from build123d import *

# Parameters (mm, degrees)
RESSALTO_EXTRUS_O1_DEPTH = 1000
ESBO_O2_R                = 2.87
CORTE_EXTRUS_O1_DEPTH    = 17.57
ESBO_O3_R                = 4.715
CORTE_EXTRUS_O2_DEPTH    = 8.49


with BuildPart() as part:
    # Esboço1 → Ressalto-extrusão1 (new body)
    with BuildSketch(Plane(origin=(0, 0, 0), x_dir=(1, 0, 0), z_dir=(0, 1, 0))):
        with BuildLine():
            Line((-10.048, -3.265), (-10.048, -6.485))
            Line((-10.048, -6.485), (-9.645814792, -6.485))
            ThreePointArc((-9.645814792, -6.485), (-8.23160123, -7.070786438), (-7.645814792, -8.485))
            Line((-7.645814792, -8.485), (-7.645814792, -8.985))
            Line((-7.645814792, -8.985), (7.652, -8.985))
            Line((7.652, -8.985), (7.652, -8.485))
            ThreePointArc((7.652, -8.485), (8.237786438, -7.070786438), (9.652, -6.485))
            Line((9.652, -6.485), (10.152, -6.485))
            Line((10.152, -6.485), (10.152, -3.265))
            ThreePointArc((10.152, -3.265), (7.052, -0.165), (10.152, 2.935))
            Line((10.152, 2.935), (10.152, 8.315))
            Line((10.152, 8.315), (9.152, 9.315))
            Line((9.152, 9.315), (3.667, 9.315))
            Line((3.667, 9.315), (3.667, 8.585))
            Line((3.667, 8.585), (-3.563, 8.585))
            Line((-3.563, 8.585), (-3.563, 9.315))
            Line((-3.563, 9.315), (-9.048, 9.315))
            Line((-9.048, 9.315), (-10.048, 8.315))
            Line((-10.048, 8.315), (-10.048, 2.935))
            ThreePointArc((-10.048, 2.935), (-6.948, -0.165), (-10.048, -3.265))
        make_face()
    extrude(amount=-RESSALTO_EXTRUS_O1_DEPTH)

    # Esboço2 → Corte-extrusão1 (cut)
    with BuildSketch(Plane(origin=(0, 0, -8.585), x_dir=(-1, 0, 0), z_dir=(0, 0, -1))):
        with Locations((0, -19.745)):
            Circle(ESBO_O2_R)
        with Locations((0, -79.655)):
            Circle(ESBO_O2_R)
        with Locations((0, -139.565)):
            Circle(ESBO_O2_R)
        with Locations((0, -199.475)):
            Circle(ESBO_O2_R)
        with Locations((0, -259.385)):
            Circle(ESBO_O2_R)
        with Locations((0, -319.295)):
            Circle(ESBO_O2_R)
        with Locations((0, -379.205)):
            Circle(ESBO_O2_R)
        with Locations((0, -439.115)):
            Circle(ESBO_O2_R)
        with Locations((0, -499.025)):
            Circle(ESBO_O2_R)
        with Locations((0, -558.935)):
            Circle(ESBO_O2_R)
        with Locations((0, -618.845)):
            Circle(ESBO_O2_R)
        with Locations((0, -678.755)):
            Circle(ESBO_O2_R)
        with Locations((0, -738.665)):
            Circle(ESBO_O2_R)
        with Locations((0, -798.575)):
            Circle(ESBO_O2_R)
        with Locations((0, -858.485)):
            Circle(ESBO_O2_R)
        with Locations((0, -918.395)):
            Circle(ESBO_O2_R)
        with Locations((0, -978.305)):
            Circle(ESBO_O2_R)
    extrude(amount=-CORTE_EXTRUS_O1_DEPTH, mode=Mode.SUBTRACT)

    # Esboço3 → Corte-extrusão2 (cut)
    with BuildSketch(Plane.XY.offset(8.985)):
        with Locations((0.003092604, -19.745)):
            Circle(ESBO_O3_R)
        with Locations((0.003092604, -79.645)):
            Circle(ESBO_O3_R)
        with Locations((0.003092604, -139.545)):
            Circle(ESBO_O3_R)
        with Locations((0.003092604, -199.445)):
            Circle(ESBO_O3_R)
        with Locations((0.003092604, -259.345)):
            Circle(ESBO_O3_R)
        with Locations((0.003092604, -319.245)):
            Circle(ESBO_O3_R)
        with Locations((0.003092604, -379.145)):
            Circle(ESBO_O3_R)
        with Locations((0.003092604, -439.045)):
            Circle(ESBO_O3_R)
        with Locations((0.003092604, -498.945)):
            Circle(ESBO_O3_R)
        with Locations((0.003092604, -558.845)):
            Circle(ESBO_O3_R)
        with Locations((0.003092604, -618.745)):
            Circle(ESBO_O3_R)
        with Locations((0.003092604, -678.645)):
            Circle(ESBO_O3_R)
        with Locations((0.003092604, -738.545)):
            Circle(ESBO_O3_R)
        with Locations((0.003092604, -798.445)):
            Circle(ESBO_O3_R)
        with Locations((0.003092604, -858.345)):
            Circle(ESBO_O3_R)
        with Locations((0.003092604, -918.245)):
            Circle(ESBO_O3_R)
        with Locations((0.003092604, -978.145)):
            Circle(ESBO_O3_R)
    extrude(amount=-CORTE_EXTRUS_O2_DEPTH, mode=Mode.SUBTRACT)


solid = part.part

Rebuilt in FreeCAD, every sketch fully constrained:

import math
import FreeCAD as App
import Part
import Sketcher

V = App.Vector

doc = App.newDocument("Part")
params = doc.addObject("Spreadsheet::Sheet", "Params")
for row, (alias, value) in enumerate([
    ("sketch1_radius", "2 mm"),
    ("sketch1_radius2", "3.1 mm"),
    ("sketch1_width", "0.5 mm"),
    ("sketch1_width2", "7.23 mm"),
    ("sketch1_height", "3.22 mm"),
    ("pad1_length", "1000 mm"),
    ("sketch2_diameter", "5.74 mm"),
    ("pocket1_length", "17.57 mm"),
    ("sketch3_diameter", "9.43 mm"),
    ("pocket2_length", "8.49 mm"),
], start=1):
    params.set(f"A{row}", alias)
    params.set(f"B{row}", "=" + value)
    params.setAlias(f"B{row}", alias)

body = doc.addObject("PartDesign::Body", "Body")

sketch1 = doc.addObject("Sketcher::SketchObject", "Sketch")
body.addObject(sketch1)
sketch1.AttachmentSupport = (doc.XZ_Plane, [""])
sketch1.MapMode = "FlatFace"
sketch1.addGeometry(Part.LineSegment(V(-10.048, 3.265, 0), V(-10.048, 6.485, 0)), False)
sketch1.addGeometry(Part.LineSegment(V(-10.048, 6.485, 0), V(-9.645815, 6.485, 0)), False)
sketch1.addGeometry(Part.ArcOfCircle(Part.Circle(V(-9.645815, 8.485, 0), V(0, 0, 1), 2), math.radians(-90), math.radians(0)), False)
sketch1.addGeometry(Part.LineSegment(V(-7.645815, 8.485, 0), V(-7.645815, 8.985, 0)), False)
sketch1.addGeometry(Part.LineSegment(V(-7.645815, 8.985, 0), V(7.652, 8.985, 0)), False)
sketch1.addGeometry(Part.LineSegment(V(7.652, 8.985, 0), V(7.652, 8.485, 0)), False)
sketch1.addGeometry(Part.ArcOfCircle(Part.Circle(V(9.652, 8.485, 0), V(0, 0, 1), 2), math.radians(-180), math.radians(-90)), False)
sketch1.addGeometry(Part.LineSegment(V(9.652, 6.485, 0), V(10.152, 6.485, 0)), False)
sketch1.addGeometry(Part.LineSegment(V(10.152, 6.485, 0), V(10.152, 3.265, 0)), False)
sketch1.addGeometry(Part.ArcOfCircle(Part.Circle(V(10.152, 0.165, 0), V(0, 0, 1), 3.1), math.radians(90), math.radians(270)), False)
sketch1.addGeometry(Part.LineSegment(V(10.152, -2.935, 0), V(10.152, -8.315, 0)), False)
sketch1.addGeometry(Part.LineSegment(V(10.152, -8.315, 0), V(9.152, -9.315, 0)), False)
sketch1.addGeometry(Part.LineSegment(V(9.152, -9.315, 0), V(3.667, -9.315, 0)), False)
sketch1.addGeometry(Part.LineSegment(V(3.667, -9.315, 0), V(3.667, -8.585, 0)), False)
sketch1.addGeometry(Part.LineSegment(V(3.667, -8.585, 0), V(-3.563, -8.585, 0)), False)
sketch1.addGeometry(Part.LineSegment(V(-3.563, -8.585, 0), V(-3.563, -9.315, 0)), False)
sketch1.addGeometry(Part.LineSegment(V(-3.563, -9.315, 0), V(-9.048, -9.315, 0)), False)
sketch1.addGeometry(Part.LineSegment(V(-9.048, -9.315, 0), V(-10.048, -8.315, 0)), False)
sketch1.addGeometry(Part.LineSegment(V(-10.048, -8.315, 0), V(-10.048, -2.935, 0)), False)
sketch1.addGeometry(Part.ArcOfCircle(Part.Circle(V(-10.048, 0.165, 0), V(0, 0, 1), 3.1), math.radians(-90), math.radians(90)), False)
sketch1.addConstraint(Sketcher.Constraint("Coincident", 0, 2, 1, 1))
sketch1.addConstraint(Sketcher.Constraint("Tangent", 1, 2, 2, 1))
sketch1.addConstraint(Sketcher.Constraint("Tangent", 2, 2, 3, 1))
sketch1.addConstraint(Sketcher.Constraint("Coincident", 3, 2, 4, 1))
sketch1.addConstraint(Sketcher.Constraint("Coincident", 4, 2, 5, 1))
sketch1.addConstraint(Sketcher.Constraint("Tangent", 5, 2, 6, 1))
sketch1.addConstraint(Sketcher.Constraint("Tangent", 6, 2, 7, 1))
sketch1.addConstraint(Sketcher.Constraint("Coincident", 7, 2, 8, 1))
sketch1.addConstraint(Sketcher.Constraint("Coincident", 8, 2, 9, 1))
sketch1.addConstraint(Sketcher.Constraint("Coincident", 9, 2, 10, 1))
sketch1.addConstraint(Sketcher.Constraint("Coincident", 10, 2, 11, 1))
sketch1.addConstraint(Sketcher.Constraint("Coincident", 11, 2, 12, 1))
sketch1.addConstraint(Sketcher.Constraint("Coincident", 12, 2, 13, 1))
sketch1.addConstraint(Sketcher.Constraint("Coincident", 13, 2, 14, 1))
sketch1.addConstraint(Sketcher.Constraint("Coincident", 14, 2, 15, 1))
sketch1.addConstraint(Sketcher.Constraint("Coincident", 15, 2, 16, 1))
sketch1.addConstraint(Sketcher.Constraint("Coincident", 16, 2, 17, 1))
sketch1.addConstraint(Sketcher.Constraint("Coincident", 17, 2, 18, 1))
sketch1.addConstraint(Sketcher.Constraint("Coincident", 18, 2, 19, 1))
sketch1.addConstraint(Sketcher.Constraint("Coincident", 19, 2, 0, 1))
sketch1.addConstraint(Sketcher.Constraint("Vertical", 0))
sketch1.addConstraint(Sketcher.Constraint("Horizontal", 1))
sketch1.addConstraint(Sketcher.Constraint("Vertical", 3))
sketch1.addConstraint(Sketcher.Constraint("Horizontal", 4))
sketch1.addConstraint(Sketcher.Constraint("Vertical", 5))
sketch1.addConstraint(Sketcher.Constraint("Horizontal", 7))
sketch1.addConstraint(Sketcher.Constraint("Vertical", 8))
sketch1.addConstraint(Sketcher.Constraint("Vertical", 10))
sketch1.addConstraint(Sketcher.Constraint("Horizontal", 12))
sketch1.addConstraint(Sketcher.Constraint("Vertical", 13))
sketch1.addConstraint(Sketcher.Constraint("Horizontal", 14))
sketch1.addConstraint(Sketcher.Constraint("Vertical", 15))
sketch1.addConstraint(Sketcher.Constraint("Horizontal", 16))
sketch1.addConstraint(Sketcher.Constraint("Vertical", 18))
sketch1.addConstraint(Sketcher.Constraint("Equal", 2, 6))
sketch1.addConstraint(Sketcher.Constraint("Equal", 9, 19))
sketch1.addConstraint(Sketcher.Constraint("Perpendicular", 11, 17))
sketch1.addConstraint(Sketcher.Constraint("Horizontal", 2, 3, 6, 3))
sketch1.addConstraint(Sketcher.Constraint("Horizontal", 9, 3, 19, 3))
sketch1.addConstraint(Sketcher.Constraint("Horizontal", 12, 2, 15, 2))
sketch1.addConstraint(Sketcher.Constraint("Horizontal", 10, 2, 17, 2))
sketch1.addConstraint(Sketcher.Constraint("Vertical", 19, 3, 0, 2))
sketch1.addConstraint(Sketcher.Constraint("Vertical", 9, 3, 7, 2))
sketch1.addConstraint(Sketcher.Constraint("Vertical", 8, 2, 9, 2))
sketch1.addConstraint(Sketcher.Constraint("Vertical", 0, 2, 17, 2))
sketch1.addConstraint(Sketcher.Constraint("Equal", 12, 16))
sketch1.addConstraint(Sketcher.Constraint("Equal", 7, 3))
sketch1.addConstraint(Sketcher.Constraint("Equal", 11, 17))
sketch1.addConstraint(Sketcher.Constraint("Radius", 2, 2.0))
sketch1.addConstraint(Sketcher.Constraint("Radius", 9, 3.1))
sketch1.addConstraint(Sketcher.Constraint("DistanceX", 7, 1, 7, 2, 0.5))
sketch1.addConstraint(Sketcher.Constraint("DistanceX", 11, 2, 10, 2, 1.0))
sketch1.addConstraint(Sketcher.Constraint("DistanceX", 14, 2, 14, 1, 7.23))
sketch1.addConstraint(Sketcher.Constraint("DistanceY", 0, 1, 0, 2, 3.22))
sketch1.addConstraint(Sketcher.Constraint("DistanceY", 10, 2, 10, 1, 5.38))
sketch1.addConstraint(Sketcher.Constraint("DistanceY", 13, 1, 13, 2, 0.73))
sketch1.addConstraint(Sketcher.Constraint("DistanceX", 19, 3, 9, 3, 20.2))
sketch1.addConstraint(Sketcher.Constraint("DistanceY", -1, 1, 2, 3, 8.485))
sketch1.addConstraint(Sketcher.Constraint("DistanceX", -1, 1, 6, 3, 9.652))
sketch1.addConstraint(Sketcher.Constraint("DistanceX", 1, 1, 1, 2, 0.402185))
sketch1.setExpression("Constraints[48]", "Params.sketch1_radius")
sketch1.setExpression("Constraints[49]", "Params.sketch1_radius2")
sketch1.setExpression("Constraints[50]", "Params.sketch1_width")
sketch1.setExpression("Constraints[52]", "Params.sketch1_width2")
sketch1.setExpression("Constraints[53]", "Params.sketch1_height")
pad1 = doc.addObject("PartDesign::Pad", "Pad")
body.addObject(pad1)
pad1.Profile = sketch1
pad1.setExpression("Length", "Params.pad1_length")

sketch2 = doc.addObject("Sketcher::SketchObject", "Sketch001")
body.addObject(sketch2)
sketch2.AttachmentSupport = (doc.XY_Plane, [""])
sketch2.MapMode = "FlatFace"
sketch2.AttachmentOffset = App.Placement(V(0, 0, -8.585), App.Rotation())
sketch2.addGeometry(Part.Circle(V(0, -19.745, 0), V(0, 0, 1), 2.87), False)
sketch2.addGeometry(Part.Circle(V(0, -79.655, 0), V(0, 0, 1), 2.87), False)
sketch2.addGeometry(Part.Circle(V(0, -139.565, 0), V(0, 0, 1), 2.87), False)
sketch2.addGeometry(Part.Circle(V(0, -199.475, 0), V(0, 0, 1), 2.87), False)
sketch2.addGeometry(Part.Circle(V(0, -259.385, 0), V(0, 0, 1), 2.87), False)
sketch2.addGeometry(Part.Circle(V(0, -319.295, 0), V(0, 0, 1), 2.87), False)
sketch2.addGeometry(Part.Circle(V(0, -379.205, 0), V(0, 0, 1), 2.87), False)
sketch2.addGeometry(Part.Circle(V(0, -439.115, 0), V(0, 0, 1), 2.87), False)
sketch2.addGeometry(Part.Circle(V(0, -499.025, 0), V(0, 0, 1), 2.87), False)
sketch2.addGeometry(Part.Circle(V(0, -558.935, 0), V(0, 0, 1), 2.87), False)
sketch2.addGeometry(Part.Circle(V(0, -618.845, 0), V(0, 0, 1), 2.87), False)
sketch2.addGeometry(Part.Circle(V(0, -678.755, 0), V(0, 0, 1), 2.87), False)
sketch2.addGeometry(Part.Circle(V(0, -738.665, 0), V(0, 0, 1), 2.87), False)
sketch2.addGeometry(Part.Circle(V(0, -798.575, 0), V(0, 0, 1), 2.87), False)
sketch2.addGeometry(Part.Circle(V(0, -858.485, 0), V(0, 0, 1), 2.87), False)
sketch2.addGeometry(Part.Circle(V(0, -918.395, 0), V(0, 0, 1), 2.87), False)
sketch2.addGeometry(Part.Circle(V(0, -978.305, 0), V(0, 0, 1), 2.87), False)
sketch2.addConstraint(Sketcher.Constraint("Equal", 0, 1))
sketch2.addConstraint(Sketcher.Constraint("Equal", 1, 2))
sketch2.addConstraint(Sketcher.Constraint("Equal", 2, 3))
sketch2.addConstraint(Sketcher.Constraint("Equal", 3, 4))
sketch2.addConstraint(Sketcher.Constraint("Equal", 4, 5))
sketch2.addConstraint(Sketcher.Constraint("Equal", 5, 6))
sketch2.addConstraint(Sketcher.Constraint("Equal", 6, 7))
sketch2.addConstraint(Sketcher.Constraint("Equal", 7, 8))
sketch2.addConstraint(Sketcher.Constraint("Equal", 8, 9))
sketch2.addConstraint(Sketcher.Constraint("Equal", 9, 10))
sketch2.addConstraint(Sketcher.Constraint("Equal", 10, 11))
sketch2.addConstraint(Sketcher.Constraint("Equal", 11, 12))
sketch2.addConstraint(Sketcher.Constraint("Equal", 12, 13))
sketch2.addConstraint(Sketcher.Constraint("Equal", 13, 14))
sketch2.addConstraint(Sketcher.Constraint("Equal", 14, 15))
sketch2.addConstraint(Sketcher.Constraint("Equal", 15, 16))
sketch2.addConstraint(Sketcher.Constraint("PointOnObject", 0, 3, -2))
sketch2.addConstraint(Sketcher.Constraint("PointOnObject", 1, 3, -2))
sketch2.addConstraint(Sketcher.Constraint("PointOnObject", 2, 3, -2))
sketch2.addConstraint(Sketcher.Constraint("PointOnObject", 3, 3, -2))
sketch2.addConstraint(Sketcher.Constraint("PointOnObject", 4, 3, -2))
sketch2.addConstraint(Sketcher.Constraint("PointOnObject", 5, 3, -2))
sketch2.addConstraint(Sketcher.Constraint("PointOnObject", 6, 3, -2))
sketch2.addConstraint(Sketcher.Constraint("PointOnObject", 7, 3, -2))
sketch2.addConstraint(Sketcher.Constraint("PointOnObject", 8, 3, -2))
sketch2.addConstraint(Sketcher.Constraint("PointOnObject", 9, 3, -2))
sketch2.addConstraint(Sketcher.Constraint("PointOnObject", 10, 3, -2))
sketch2.addConstraint(Sketcher.Constraint("PointOnObject", 11, 3, -2))
sketch2.addConstraint(Sketcher.Constraint("PointOnObject", 12, 3, -2))
sketch2.addConstraint(Sketcher.Constraint("PointOnObject", 13, 3, -2))
sketch2.addConstraint(Sketcher.Constraint("PointOnObject", 14, 3, -2))
sketch2.addConstraint(Sketcher.Constraint("PointOnObject", 15, 3, -2))
sketch2.addConstraint(Sketcher.Constraint("PointOnObject", 16, 3, -2))
sketch2.addConstraint(Sketcher.Constraint("Diameter", 0, 5.74))
sketch2.addConstraint(Sketcher.Constraint("DistanceY", 1, 3, 0, 3, 59.91))
sketch2.addConstraint(Sketcher.Constraint("DistanceY", 2, 3, 1, 3, 59.91))
sketch2.addConstraint(Sketcher.Constraint("DistanceY", 3, 3, 2, 3, 59.91))
sketch2.addConstraint(Sketcher.Constraint("DistanceY", 4, 3, 3, 3, 59.91))
sketch2.addConstraint(Sketcher.Constraint("DistanceY", 5, 3, 4, 3, 59.91))
sketch2.addConstraint(Sketcher.Constraint("DistanceY", 6, 3, 5, 3, 59.91))
sketch2.addConstraint(Sketcher.Constraint("DistanceY", 7, 3, 6, 3, 59.91))
sketch2.addConstraint(Sketcher.Constraint("DistanceY", 8, 3, 7, 3, 59.91))
sketch2.addConstraint(Sketcher.Constraint("DistanceY", 9, 3, 8, 3, 59.91))
sketch2.addConstraint(Sketcher.Constraint("DistanceY", 10, 3, 9, 3, 59.91))
sketch2.addConstraint(Sketcher.Constraint("DistanceY", 11, 3, 10, 3, 59.91))
sketch2.addConstraint(Sketcher.Constraint("DistanceY", 12, 3, 11, 3, 59.91))
sketch2.addConstraint(Sketcher.Constraint("DistanceY", 13, 3, 12, 3, 59.91))
sketch2.addConstraint(Sketcher.Constraint("DistanceY", 14, 3, 13, 3, 59.91))
sketch2.addConstraint(Sketcher.Constraint("DistanceY", 15, 3, 14, 3, 59.91))
sketch2.addConstraint(Sketcher.Constraint("DistanceY", 16, 3, 15, 3, 59.91))
sketch2.addConstraint(Sketcher.Constraint("DistanceY", 0, 3, -1, 1, 19.745))
sketch2.setExpression("Constraints[33]", "Params.sketch2_diameter")
pocket1 = doc.addObject("PartDesign::Pocket", "Pocket")
body.addObject(pocket1)
pocket1.Profile = sketch2
pocket1.setExpression("Length", "Params.pocket1_length")
pocket1.Reversed = True

sketch3 = doc.addObject("Sketcher::SketchObject", "Sketch002")
body.addObject(sketch3)
sketch3.AttachmentSupport = (doc.XY_Plane, [""])
sketch3.MapMode = "FlatFace"
sketch3.AttachmentOffset = App.Placement(V(0, 0, 8.985), App.Rotation())
sketch3.addGeometry(Part.Circle(V(0.003093, -19.745, 0), V(0, 0, 1), 4.715), False)
sketch3.addGeometry(Part.Circle(V(0.003093, -79.645, 0), V(0, 0, 1), 4.715), False)
sketch3.addGeometry(Part.Circle(V(0.003093, -139.545, 0), V(0, 0, 1), 4.715), False)
sketch3.addGeometry(Part.Circle(V(0.003093, -199.445, 0), V(0, 0, 1), 4.715), False)
sketch3.addGeometry(Part.Circle(V(0.003093, -259.345, 0), V(0, 0, 1), 4.715), False)
sketch3.addGeometry(Part.Circle(V(0.003093, -319.245, 0), V(0, 0, 1), 4.715), False)
sketch3.addGeometry(Part.Circle(V(0.003093, -379.145, 0), V(0, 0, 1), 4.715), False)
sketch3.addGeometry(Part.Circle(V(0.003093, -439.045, 0), V(0, 0, 1), 4.715), False)
sketch3.addGeometry(Part.Circle(V(0.003093, -498.945, 0), V(0, 0, 1), 4.715), False)
sketch3.addGeometry(Part.Circle(V(0.003093, -558.845, 0), V(0, 0, 1), 4.715), False)
sketch3.addGeometry(Part.Circle(V(0.003093, -618.745, 0), V(0, 0, 1), 4.715), False)
sketch3.addGeometry(Part.Circle(V(0.003093, -678.645, 0), V(0, 0, 1), 4.715), False)
sketch3.addGeometry(Part.Circle(V(0.003093, -738.545, 0), V(0, 0, 1), 4.715), False)
sketch3.addGeometry(Part.Circle(V(0.003093, -798.445, 0), V(0, 0, 1), 4.715), False)
sketch3.addGeometry(Part.Circle(V(0.003093, -858.345, 0), V(0, 0, 1), 4.715), False)
sketch3.addGeometry(Part.Circle(V(0.003093, -918.245, 0), V(0, 0, 1), 4.715), False)
sketch3.addGeometry(Part.Circle(V(0.003093, -978.145, 0), V(0, 0, 1), 4.715), False)
sketch3.addConstraint(Sketcher.Constraint("Equal", 0, 1))
sketch3.addConstraint(Sketcher.Constraint("Equal", 1, 2))
sketch3.addConstraint(Sketcher.Constraint("Equal", 2, 3))
sketch3.addConstraint(Sketcher.Constraint("Equal", 3, 4))
sketch3.addConstraint(Sketcher.Constraint("Equal", 4, 5))
sketch3.addConstraint(Sketcher.Constraint("Equal", 5, 6))
sketch3.addConstraint(Sketcher.Constraint("Equal", 6, 7))
sketch3.addConstraint(Sketcher.Constraint("Equal", 7, 8))
sketch3.addConstraint(Sketcher.Constraint("Equal", 8, 9))
sketch3.addConstraint(Sketcher.Constraint("Equal", 9, 10))
sketch3.addConstraint(Sketcher.Constraint("Equal", 10, 11))
sketch3.addConstraint(Sketcher.Constraint("Equal", 11, 12))
sketch3.addConstraint(Sketcher.Constraint("Equal", 12, 13))
sketch3.addConstraint(Sketcher.Constraint("Equal", 13, 14))
sketch3.addConstraint(Sketcher.Constraint("Equal", 14, 15))
sketch3.addConstraint(Sketcher.Constraint("Equal", 15, 16))
sketch3.addConstraint(Sketcher.Constraint("Vertical", 0, 3, 1, 3))
sketch3.addConstraint(Sketcher.Constraint("Vertical", 1, 3, 2, 3))
sketch3.addConstraint(Sketcher.Constraint("Vertical", 2, 3, 3, 3))
sketch3.addConstraint(Sketcher.Constraint("Vertical", 3, 3, 4, 3))
sketch3.addConstraint(Sketcher.Constraint("Vertical", 4, 3, 5, 3))
sketch3.addConstraint(Sketcher.Constraint("Vertical", 5, 3, 6, 3))
sketch3.addConstraint(Sketcher.Constraint("Vertical", 6, 3, 7, 3))
sketch3.addConstraint(Sketcher.Constraint("Vertical", 7, 3, 8, 3))
sketch3.addConstraint(Sketcher.Constraint("Vertical", 8, 3, 9, 3))
sketch3.addConstraint(Sketcher.Constraint("Vertical", 9, 3, 10, 3))
sketch3.addConstraint(Sketcher.Constraint("Vertical", 10, 3, 11, 3))
sketch3.addConstraint(Sketcher.Constraint("Vertical", 11, 3, 12, 3))
sketch3.addConstraint(Sketcher.Constraint("Vertical", 12, 3, 13, 3))
sketch3.addConstraint(Sketcher.Constraint("Vertical", 13, 3, 14, 3))
sketch3.addConstraint(Sketcher.Constraint("Vertical", 14, 3, 15, 3))
sketch3.addConstraint(Sketcher.Constraint("Vertical", 15, 3, 16, 3))
sketch3.addConstraint(Sketcher.Constraint("Diameter", 0, 9.43))
sketch3.addConstraint(Sketcher.Constraint("DistanceY", 1, 3, 0, 3, 59.9))
sketch3.addConstraint(Sketcher.Constraint("DistanceY", 2, 3, 1, 3, 59.9))
sketch3.addConstraint(Sketcher.Constraint("DistanceY", 3, 3, 2, 3, 59.9))
sketch3.addConstraint(Sketcher.Constraint("DistanceY", 4, 3, 3, 3, 59.9))
sketch3.addConstraint(Sketcher.Constraint("DistanceY", 5, 3, 4, 3, 59.9))
sketch3.addConstraint(Sketcher.Constraint("DistanceY", 6, 3, 5, 3, 59.9))
sketch3.addConstraint(Sketcher.Constraint("DistanceY", 7, 3, 6, 3, 59.9))
sketch3.addConstraint(Sketcher.Constraint("DistanceY", 8, 3, 7, 3, 59.9))
sketch3.addConstraint(Sketcher.Constraint("DistanceY", 9, 3, 8, 3, 59.9))
sketch3.addConstraint(Sketcher.Constraint("DistanceY", 10, 3, 9, 3, 59.9))
sketch3.addConstraint(Sketcher.Constraint("DistanceY", 11, 3, 10, 3, 59.9))
sketch3.addConstraint(Sketcher.Constraint("DistanceY", 12, 3, 11, 3, 59.9))
sketch3.addConstraint(Sketcher.Constraint("DistanceY", 13, 3, 12, 3, 59.9))
sketch3.addConstraint(Sketcher.Constraint("DistanceY", 14, 3, 13, 3, 59.9))
sketch3.addConstraint(Sketcher.Constraint("DistanceY", 15, 3, 14, 3, 59.9))
sketch3.addConstraint(Sketcher.Constraint("DistanceY", 16, 3, 15, 3, 59.9))
sketch3.addConstraint(Sketcher.Constraint("DistanceY", 0, 3, -1, 1, 19.745))
sketch3.addConstraint(Sketcher.Constraint("DistanceX", -1, 1, 0, 3, 0.003093))
sketch3.setExpression("Constraints[32]", "Params.sketch3_diameter")
pocket2 = doc.addObject("PartDesign::Pocket", "Pocket001")
body.addObject(pocket2)
pocket2.Profile = sketch3
pocket2.setExpression("Length", "Params.pocket2_length")

doc.recompute()
